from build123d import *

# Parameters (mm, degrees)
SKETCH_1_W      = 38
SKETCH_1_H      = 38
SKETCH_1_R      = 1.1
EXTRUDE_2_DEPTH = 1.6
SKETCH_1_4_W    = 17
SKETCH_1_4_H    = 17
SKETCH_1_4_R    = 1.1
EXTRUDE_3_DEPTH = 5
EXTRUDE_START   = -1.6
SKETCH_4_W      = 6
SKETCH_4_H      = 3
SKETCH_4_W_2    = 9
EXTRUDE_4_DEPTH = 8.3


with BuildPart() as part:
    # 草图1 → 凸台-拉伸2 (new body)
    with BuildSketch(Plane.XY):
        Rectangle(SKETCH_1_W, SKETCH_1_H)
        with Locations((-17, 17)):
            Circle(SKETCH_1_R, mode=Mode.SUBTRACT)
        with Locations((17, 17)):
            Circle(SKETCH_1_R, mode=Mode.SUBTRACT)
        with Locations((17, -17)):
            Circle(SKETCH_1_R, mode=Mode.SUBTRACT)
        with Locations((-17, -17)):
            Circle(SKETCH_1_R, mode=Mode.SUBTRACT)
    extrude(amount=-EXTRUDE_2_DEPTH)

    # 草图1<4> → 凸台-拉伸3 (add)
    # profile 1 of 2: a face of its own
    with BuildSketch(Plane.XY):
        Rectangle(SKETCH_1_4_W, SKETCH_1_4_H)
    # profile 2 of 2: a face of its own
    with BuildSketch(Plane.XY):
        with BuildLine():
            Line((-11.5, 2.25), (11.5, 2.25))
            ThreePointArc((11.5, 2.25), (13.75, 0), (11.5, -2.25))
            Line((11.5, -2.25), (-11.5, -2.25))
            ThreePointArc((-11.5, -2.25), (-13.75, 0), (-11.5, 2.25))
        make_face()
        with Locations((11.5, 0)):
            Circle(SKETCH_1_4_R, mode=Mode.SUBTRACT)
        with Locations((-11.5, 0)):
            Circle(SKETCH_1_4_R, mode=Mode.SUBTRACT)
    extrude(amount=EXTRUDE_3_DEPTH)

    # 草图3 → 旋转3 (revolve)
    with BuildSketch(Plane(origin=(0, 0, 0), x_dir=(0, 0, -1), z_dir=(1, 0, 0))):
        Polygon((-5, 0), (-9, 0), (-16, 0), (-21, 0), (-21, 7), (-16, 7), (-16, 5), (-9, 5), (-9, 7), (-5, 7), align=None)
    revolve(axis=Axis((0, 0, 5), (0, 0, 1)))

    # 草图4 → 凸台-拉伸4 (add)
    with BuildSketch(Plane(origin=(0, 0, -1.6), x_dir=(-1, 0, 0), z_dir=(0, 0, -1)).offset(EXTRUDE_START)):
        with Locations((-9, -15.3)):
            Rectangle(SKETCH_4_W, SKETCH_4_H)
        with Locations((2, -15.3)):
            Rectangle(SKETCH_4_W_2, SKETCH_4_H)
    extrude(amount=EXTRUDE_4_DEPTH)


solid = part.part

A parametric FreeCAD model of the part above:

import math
import FreeCAD as App
import Part
import Sketcher

V = App.Vector
Q = App.Units.Quantity

doc = App.newDocument("Part")
body = doc.addObject("PartDesign::Body", "Body")

# Sketch on XY plane
sketch1 = doc.addObject("Sketcher::SketchObject", "Sketch")
body.addObject(sketch1)
sketch1.AttachmentSupport = (doc.XY_Plane, [""])
sketch1.MapMode = "FlatFace"
sketch1.addGeometry(Part.LineSegment(V(-19, 19, 0), V(-19, -19, 0)), False)
sketch1.addGeometry(Part.LineSegment(V(-19, -19, 0), V(19, -19, 0)), False)
sketch1.addGeometry(Part.LineSegment(V(19, -19, 0), V(19, 19, 0)), False)
sketch1.addGeometry(Part.LineSegment(V(19, 19, 0), V(-19, 19, 0)), False)
sketch1.addGeometry(Part.Circle(V(-17, -17, 0), V(0, 0, 1), 1.1), False)
sketch1.addGeometry(Part.Circle(V(17, -17, 0), V(0, 0, 1), 1.1), False)
sketch1.addGeometry(Part.Circle(V(-17, 17, 0), V(0, 0, 1), 1.1), False)
sketch1.addGeometry(Part.Circle(V(17, 17, 0), V(0, 0, 1), 1.1), False)
sketch1.addConstraint(Sketcher.Constraint("Coincident", 0, 2, 1, 1))
sketch1.addConstraint(Sketcher.Constraint("Coincident", 1, 2, 2, 1))
sketch1.addConstraint(Sketcher.Constraint("Coincident", 2, 2, 3, 1))
sketch1.addConstraint(Sketcher.Constraint("Coincident", 3, 2, 0, 1))
sketch1.addConstraint(Sketcher.Constraint("Vertical", 0))
sketch1.addConstraint(Sketcher.Constraint("Horizontal", 1))
sketch1.addConstraint(Sketcher.Constraint("Vertical", 2))
sketch1.addConstraint(Sketcher.Constraint("Horizontal", 3))
sketch1.addConstraint(Sketcher.Constraint("Equal", 4, 5))
sketch1.addConstraint(Sketcher.Constraint("Equal", 5, 6))
sketch1.addConstraint(Sketcher.Constraint("Equal", 6, 7))
sketch1.addConstraint(Sketcher.Constraint("Symmetric", 5, 3, 6, 3, -1, 1))
sketch1.addConstraint(Sketcher.Constraint("Symmetric", 4, 3, 7, 3, -1, 1))
sketch1.addConstraint(Sketcher.Constraint("Symmetric", 0, 2, 2, 2, -1, 1))
sketch1.addConstraint(Sketcher.Constraint("Symmetric", 4, 3, 5, 3, -2))
sketch1.addConstraint(Sketcher.Constraint("Equal", 3, 0))
sketch1.addConstraint(Sketcher.Constraint("Diameter", 4, Q("2.2 mm")))
sketch1.addConstraint(Sketcher.Constraint("DistanceX", 1, 1, 1, 2, Q("38 mm")))
sketch1.addConstraint(Sketcher.Constraint("DistanceX", 4, 3, -1, 1, Q("17 mm")))
sketch1.addConstraint(Sketcher.Constraint("DistanceY", 4, 3, -1, 1, Q("17 mm")))
pad1 = doc.addObject("PartDesign::Pad", "Pad")
body.addObject(pad1)
pad1.Profile = sketch1
pad1.Length = 1.6
pad1.Reversed = True

# Sketch on XY plane
sketch2 = doc.addObject("Sketcher::SketchObject", "Sketch001")
body.addObject(sketch2)
sketch2.AttachmentSupport = (doc.XY_Plane, [""])
sketch2.MapMode = "FlatFace"
sketch2.addGeometry(Part.LineSegment(V(-8.5, -2.2, 0), V(-8.5, -8.5, 0)), False)
sketch2.addGeometry(Part.LineSegment(V(-8.5, -8.5, 0), V(8.5, -8.5, 0)), False)
sketch2.addGeometry(Part.LineSegment(V(8.5, -8.5, 0), V(8.5, -2.2, 0)), False)
sketch2.addGeometry(Part.LineSegment(V(8.5, -2.2, 0), V(11.5, -2.2, 0)), False)
sketch2.addGeometry(Part.ArcOfCircle(Part.Circle(V(11.5, 0, 0), V(0, 0, 1), 2.2), math.radians(-90), math.radians(90)), False)
sketch2.addGeometry(Part.LineSegment(V(11.5, 2.2, 0), V(8.5, 2.2, 0)), False)
sketch2.addGeometry(Part.LineSegment(V(8.5, 2.2, 0), V(8.5, 8.5, 0)), False)
sketch2.addGeometry(Part.LineSegment(V(8.5, 8.5, 0), V(-8.5, 8.5, 0)), False)
sketch2.addGeometry(Part.LineSegment(V(-8.5, 8.5, 0), V(-8.5, 2.2, 0)), False)
sketch2.addGeometry(Part.LineSegment(V(-8.5, 2.2, 0), V(-11.5, 2.2, 0)), False)
sketch2.addGeometry(Part.ArcOfCircle(Part.Circle(V(-11.5, 0, 0), V(0, 0, 1), 2.2), math.radians(90), math.radians(270)), False)
sketch2.addGeometry(Part.LineSegment(V(-11.5, -2.2, 0), V(-8.5, -2.2, 0)), False)
sketch2.addGeometry(Part.Circle(V(-11.5, 0, 0), V(0, 0, 1), 1.1), False)
sketch2.addGeometry(Part.Circle(V(11.5, 0, 0), V(0, 0, 1), 1.1), False)
sketch2.addConstraint(Sketcher.Constraint("Coincident", 0, 2, 1, 1))
sketch2.addConstraint(Sketcher.Constraint("Coincident", 1, 2, 2, 1))
sketch2.addConstraint(Sketcher.Constraint("Coincident", 2, 2, 3, 1))
sketch2.addConstraint(Sketcher.Constraint("Tangent", 3, 2, 4, 1))
sketch2.addConstraint(Sketcher.Constraint("Tangent", 4, 2, 5, 1))
sketch2.addConstraint(Sketcher.Constraint("Coincident", 5, 2, 6, 1))
sketch2.addConstraint(Sketcher.Constraint("Coincident", 6, 2, 7, 1))
sketch2.addConstraint(Sketcher.Constraint("Coincident", 7, 2, 8, 1))
sketch2.addConstraint(Sketcher.Constraint("Coincident", 8, 2, 9, 1))
sketch2.addConstraint(Sketcher.Constraint("Tangent", 9, 2, 10, 1))
sketch2.addConstraint(Sketcher.Constraint("Tangent", 10, 2, 11, 1))
sketch2.addConstraint(Sketcher.Constraint("Coincident", 11, 2, 0, 1))
sketch2.addConstraint(Sketcher.Constraint("Vertical", 0))
sketch2.addConstraint(Sketcher.Constraint("Horizontal", 1))
sketch2.addConstraint(Sketcher.Constraint("Vertical", 2))
sketch2.addConstraint(Sketcher.Constraint("Horizontal", 3))
sketch2.addConstraint(Sketcher.Constraint("Horizontal", 5))
sketch2.addConstraint(Sketcher.Constraint("Vertical", 6))
sketch2.addConstraint(Sketcher.Constraint("Horizontal", 7))
sketch2.addConstraint(Sketcher.Constraint("Vertical", 8))
sketch2.addConstraint(Sketcher.Constraint("Horizontal", 9))
sketch2.addConstraint(Sketcher.Constraint("Horizontal", 11))
sketch2.addConstraint(Sketcher.Constraint("Coincident", 12, 3, 10, 3))
sketch2.addConstraint(Sketcher.Constraint("Coincident", 13, 3, 4, 3))
sketch2.addConstraint(Sketcher.Constraint("Equal", 4, 10))
sketch2.addConstraint(Sketcher.Constraint("Equal", 12, 13))
sketch2.addConstraint(Sketcher.Constraint("Symmetric", 4, 3, 10, 3, -1, 1))
sketch2.addConstraint(Sketcher.Constraint("Symmetric", 0, 2, 6, 2, -1, 1))
sketch2.addConstraint(Sketcher.Constraint("Symmetric", 5, 2, 8, 2, -2))
sketch2.addConstraint(Sketcher.Constraint("Vertical", 2, 2, 5, 2))
sketch2.addConstraint(Sketcher.Constraint("Diameter", 12, Q("2.2 mm")))
sketch2.addConstraint(Sketcher.Constraint("DistanceX", 1, 1, 1, 2, Q("17 mm")))
sketch2.addConstraint(Sketcher.Constraint("DistanceX", 3, 1, 3, 2, Q("3 mm")))
sketch2.addConstraint(Sketcher.Constraint("Radius", 4, Q("2.25 mm")))
sketch2.addConstraint(Sketcher.Constraint("DistanceY", 0, 2, 7, 2, Q("17 mm")))
pad2 = doc.addObject("PartDesign::Pad", "Pad001")
body.addObject(pad2)
pad2.Profile = sketch2
pad2.Length = 5

# Sketch on YZ plane
sketch3 = doc.addObject("Sketcher::SketchObject", "Sketch002")
body.addObject(sketch3)
sketch3.AttachmentSupport = (doc.YZ_Plane, [""])
sketch3.MapMode = "FlatFace"
sketch3.addGeometry(Part.LineSegment(V(0, 21, 0), V(0, 5, 0)), False)
sketch3.addGeometry(Part.LineSegment(V(0, 5, 0), V(7, 5, 0)), False)
sketch3.addGeometry(Part.LineSegment(V(7, 5, 0), V(7, 9, 0)), False)
sketch3.addGeometry(Part.LineSegment(V(7, 9, 0), V(5, 9, 0)), False)
sketch3.addGeometry(Part.LineSegment(V(5, 9, 0), V(5, 16, 0)), False)
sketch3.addGeometry(Part.LineSegment(V(5, 16, 0), V(7, 16, 0)), False)
sketch3.addGeometry(Part.LineSegment(V(7, 16, 0), V(7, 21, 0)), False)
sketch3.addGeometry(Part.LineSegment(V(7, 21, 0), V(0, 21, 0)), False)
sketch3.addConstraint(Sketcher.Constraint("Coincident", 0, 2, 1, 1))
sketch3.addConstraint(Sketcher.Constraint("Coincident", 1, 2, 2, 1))
sketch3.addConstraint(Sketcher.Constraint("Coincident", 2, 2, 3, 1))
sketch3.addConstraint(Sketcher.Constraint("Coincident", 3, 2, 4, 1))
sketch3.addConstraint(Sketcher.Constraint("Coincident", 4, 2, 5, 1))
sketch3.addConstraint(Sketcher.Constraint("Coincident", 5, 2, 6, 1))
sketch3.addConstraint(Sketcher.Constraint("Coincident", 6, 2, 7, 1))
sketch3.addConstraint(Sketcher.Constraint("Coincident", 7, 2, 0, 1))
sketch3.addConstraint(Sketcher.Constraint("Vertical", 0))
sketch3.addConstraint(Sketcher.Constraint("Horizontal", 1))
sketch3.addConstraint(Sketcher.Constraint("Vertical", 2))
sketch3.addConstraint(Sketcher.Constraint("Horizontal", 3))
sketch3.addConstraint(Sketcher.Constraint("Vertical", 4))
sketch3.addConstraint(Sketcher.Constraint("Horizontal", 5))
sketch3.addConstraint(Sketcher.Constraint("Vertical", 6))
sketch3.addConstraint(Sketcher.Constraint("Horizontal", 7))
sketch3.addConstraint(Sketcher.Constraint("PointOnObject", 0, 2, -2))
sketch3.addConstraint(Sketcher.Constraint("Vertical", 2, 2, 5, 2))
sketch3.addConstraint(Sketcher.Constraint("Equal", 7, 4))
sketch3.addConstraint(Sketcher.Constraint("DistanceX", 1, 1, 1, 2, Q("7 mm")))
sketch3.addConstraint(Sketcher.Constraint("DistanceX", 3, 2, 3, 1, Q("2 mm")))
sketch3.addConstraint(Sketcher.Constraint("DistanceY", 0, 2, 0, 1, Q("16 mm")))
sketch3.addConstraint(Sketcher.Constraint("DistanceY", 2, 1, 2, 2, Q("4 mm")))
sketch3.addConstraint(Sketcher.Constraint("DistanceY", -1, 1, 0, 2, Q("5 mm")))
revolution = doc.addObject("PartDesign::Revolution", "Revolution")
body.addObject(revolution)
revolution.Profile = sketch3
revolution.ReferenceAxis = (sketch3, ["V_Axis"])
revolution.Angle = 360

# Sketch on XY plane
sketch4 = doc.addObject("Sketcher::SketchObject", "Sketch003")
body.addObject(sketch4)
sketch4.AttachmentSupport = (doc.XY_Plane, [""])
sketch4.MapMode = "FlatFace"
sketch4.addGeometry(Part.LineSegment(V(12, -13.8, 0), V(12, -16.8, 0)), False)
sketch4.addGeometry(Part.LineSegment(V(12, -16.8, 0), V(6, -16.8, 0)), False)
sketch4.addGeometry(Part.LineSegment(V(6, -16.8, 0), V(6, -13.8, 0)), False)
sketch4.addGeometry(Part.LineSegment(V(6, -13.8, 0), V(12, -13.8, 0)), False)
sketch4.addGeometry(Part.LineSegment(V(2.5, -13.8, 0), V(2.5, -16.8, 0)), False)
sketch4.addGeometry(Part.LineSegment(V(2.5, -16.8, 0), V(-6.5, -16.8, 0)), False)
sketch4.addGeometry(Part.LineSegment(V(-6.5, -16.8, 0), V(-6.5, -13.8, 0)), False)
sketch4.addGeometry(Part.LineSegment(V(-6.5, -13.8, 0), V(2.5, -13.8, 0)), False)
sketch4.addConstraint(Sketcher.Constraint("Coincident", 0, 2, 1, 1))
sketch4.addConstraint(Sketcher.Constraint("Coincident", 1, 2, 2, 1))
sketch4.addConstraint(Sketcher.Constraint("Coincident", 2, 2, 3, 1))
sketch4.addConstraint(Sketcher.Constraint("Coincident", 3, 2, 0, 1))
sketch4.addConstraint(Sketcher.Constraint("Coincident", 4, 2, 5, 1))
sketch4.addConstraint(Sketcher.Constraint("Coincident", 5, 2, 6, 1))
sketch4.addConstraint(Sketcher.Constraint("Coincident", 6, 2, 7, 1))
sketch4.addConstraint(Sketcher.Constraint("Coincident", 7, 2, 4, 1))
sketch4.addConstraint(Sketcher.Constraint("Vertical", 0))
sketch4.addConstraint(Sketcher.Constraint("Horizontal", 1))
sketch4.addConstraint(Sketcher.Constraint("Vertical", 2))
sketch4.addConstraint(Sketcher.Constraint("Horizontal", 3))
sketch4.addConstraint(Sketcher.Constraint("Vertical", 4))
sketch4.addConstraint(Sketcher.Constraint("Horizontal", 5))
sketch4.addConstraint(Sketcher.Constraint("Vertical", 6))
sketch4.addConstraint(Sketcher.Constraint("Horizontal", 7))
sketch4.addConstraint(Sketcher.Constraint("Horizontal", 1, 2, 4, 2))
sketch4.addConstraint(Sketcher.Constraint("Horizontal", 3, 2, 6, 2))
sketch4.addConstraint(Sketcher.Constraint("DistanceX", 1, 2, 1, 1, Q("6 mm")))
sketch4.addConstraint(Sketcher.Constraint("DistanceX", 5, 2, 5, 1, Q("9 mm")))
sketch4.addConstraint(Sketcher.Constraint("DistanceY", 0, 2, 0, 1, Q("3 mm")))
sketch4.addConstraint(Sketcher.Constraint("DistanceX", -1, 1, 0, 2, Q("12 mm")))
sketch4.addConstraint(Sketcher.Constraint("DistanceY", 0, 2, -1, 1, Q("16.8 mm")))
sketch4.addConstraint(Sketcher.Constraint("DistanceX", -1, 1, 4, 2, Q("2.5 mm")))
pad3 = doc.addObject("PartDesign::Pad", "Pad002")
body.addObject(pad3)
pad3.Profile = sketch4
pad3.Length = 8.3
pad3.Reversed = True

doc.recompute()
